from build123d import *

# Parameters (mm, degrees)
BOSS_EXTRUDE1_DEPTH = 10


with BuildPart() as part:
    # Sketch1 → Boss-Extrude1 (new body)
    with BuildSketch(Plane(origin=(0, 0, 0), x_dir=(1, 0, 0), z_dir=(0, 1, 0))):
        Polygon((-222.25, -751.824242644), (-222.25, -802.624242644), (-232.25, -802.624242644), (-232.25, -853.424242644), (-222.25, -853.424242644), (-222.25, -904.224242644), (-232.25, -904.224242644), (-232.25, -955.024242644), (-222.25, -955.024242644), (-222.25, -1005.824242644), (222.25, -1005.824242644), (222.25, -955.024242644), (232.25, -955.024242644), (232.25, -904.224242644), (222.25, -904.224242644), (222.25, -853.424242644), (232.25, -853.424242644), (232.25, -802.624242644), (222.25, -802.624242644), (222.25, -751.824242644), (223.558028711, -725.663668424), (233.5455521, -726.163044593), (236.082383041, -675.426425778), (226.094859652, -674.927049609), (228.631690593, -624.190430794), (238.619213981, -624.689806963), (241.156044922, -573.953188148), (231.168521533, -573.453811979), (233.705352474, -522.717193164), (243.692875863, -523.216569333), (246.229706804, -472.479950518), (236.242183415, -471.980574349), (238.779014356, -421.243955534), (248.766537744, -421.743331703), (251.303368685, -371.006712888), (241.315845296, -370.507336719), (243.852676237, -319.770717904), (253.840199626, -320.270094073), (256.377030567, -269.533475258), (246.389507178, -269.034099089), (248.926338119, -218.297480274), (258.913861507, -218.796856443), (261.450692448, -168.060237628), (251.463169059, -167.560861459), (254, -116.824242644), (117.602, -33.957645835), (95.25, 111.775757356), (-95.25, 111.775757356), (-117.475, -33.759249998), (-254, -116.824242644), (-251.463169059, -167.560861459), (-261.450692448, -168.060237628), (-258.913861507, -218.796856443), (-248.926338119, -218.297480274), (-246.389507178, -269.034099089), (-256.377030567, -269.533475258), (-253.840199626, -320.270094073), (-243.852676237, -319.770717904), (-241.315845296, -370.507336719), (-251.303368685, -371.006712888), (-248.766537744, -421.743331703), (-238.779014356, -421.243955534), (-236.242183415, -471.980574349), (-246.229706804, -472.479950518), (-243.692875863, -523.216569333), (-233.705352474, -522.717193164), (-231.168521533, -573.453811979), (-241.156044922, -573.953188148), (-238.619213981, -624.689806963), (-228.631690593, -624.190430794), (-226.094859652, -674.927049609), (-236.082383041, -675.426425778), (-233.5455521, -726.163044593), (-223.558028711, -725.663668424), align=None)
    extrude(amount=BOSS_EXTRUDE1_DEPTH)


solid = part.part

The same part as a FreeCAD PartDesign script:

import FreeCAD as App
import Part
import Sketcher

V = App.Vector
Q = App.Units.Quantity

doc = App.newDocument("Part")
params = doc.addObject("Spreadsheet::Sheet", "Params")
for row, (alias, value) in enumerate([
    ("sketch1_height", "2 in"),
    ("sketch1_length", "2 in"),
    ("sketch1_width", "17.5 in"),
    ("sketch1_width2", "7.5 in"),
    ("pad1_length", "10 mm"),
], start=1):
    params.set(f"A{row}", alias)
    params.set(f"B{row}", "=" + value)
    params.setAlias(f"B{row}", alias)

body = doc.addObject("PartDesign::Body", "Body")

sketch1 = doc.addObject("Sketcher::SketchObject", "Sketch")
body.addObject(sketch1)
sketch1.AttachmentSupport = (doc.XZ_Plane, [""])
sketch1.MapMode = "FlatFace"
sketch1.addGeometry([
    Part.LineSegment(V(-222.25, 751.824243, 0), V(-222.25, 802.624243, 0)),
    Part.LineSegment(V(-222.25, 802.624243, 0), V(-232.25, 802.624243, 0)),
    Part.LineSegment(V(-232.25, 802.624243, 0), V(-232.25, 853.424243, 0)),
    Part.LineSegment(V(-232.25, 853.424243, 0), V(-222.25, 853.424243, 0)),
    Part.LineSegment(V(-222.25, 853.424243, 0), V(-222.25, 904.224243, 0)),
    Part.LineSegment(V(-222.25, 904.224243, 0), V(-232.25, 904.224243, 0)),
    Part.LineSegment(V(-232.25, 904.224243, 0), V(-232.25, 955.024243, 0)),
    Part.LineSegment(V(-232.25, 955.024243, 0), V(-222.25, 955.024243, 0)),
    Part.LineSegment(V(-222.25, 955.024243, 0), V(-222.25, 1005.824243, 0)),
    Part.LineSegment(V(-222.25, 1005.824243, 0), V(222.25, 1005.824243, 0)),
    Part.LineSegment(V(222.25, 1005.824243, 0), V(222.25, 955.024243, 0)),
    Part.LineSegment(V(222.25, 955.024243, 0), V(232.25, 955.024243, 0)),
    Part.LineSegment(V(232.25, 955.024243, 0), V(232.25, 904.224243, 0)),
    Part.LineSegment(V(232.25, 904.224243, 0), V(222.25, 904.224243, 0)),
    Part.LineSegment(V(222.25, 904.224243, 0), V(222.25, 853.424243, 0)),
    Part.LineSegment(V(222.25, 853.424243, 0), V(232.25, 853.424243, 0)),
    Part.LineSegment(V(232.25, 853.424243, 0), V(232.25, 802.624243, 0)),
    Part.LineSegment(V(232.25, 802.624243, 0), V(222.25, 802.624243, 0)),
    Part.LineSegment(V(222.25, 802.624243, 0), V(222.25, 751.824243, 0)),
    Part.LineSegment(V(222.25, 751.824243, 0), V(223.558029, 725.663668, 0)),
    Part.LineSegment(V(223.558029, 725.663668, 0), V(233.545552, 726.163045, 0)),
    Part.LineSegment(V(233.545552, 726.163045, 0), V(236.082383, 675.426426, 0)),
    Part.LineSegment(V(236.082383, 675.426426, 0), V(226.09486, 674.92705, 0)),
    Part.LineSegment(V(226.09486, 674.92705, 0), V(228.631691, 624.190431, 0)),
    Part.LineSegment(V(228.631691, 624.190431, 0), V(238.619214, 624.689807, 0)),
    Part.LineSegment(V(238.619214, 624.689807, 0), V(241.156045, 573.953188, 0)),
    Part.LineSegment(V(241.156045, 573.953188, 0), V(231.168522, 573.453812, 0)),
    Part.LineSegment(V(231.168522, 573.453812, 0), V(233.705352, 522.717193, 0)),
    Part.LineSegment(V(233.705352, 522.717193, 0), V(243.692876, 523.216569, 0)),
    Part.LineSegment(V(243.692876, 523.216569, 0), V(246.229707, 472.479951, 0)),
    Part.LineSegment(V(246.229707, 472.479951, 0), V(236.242183, 471.980574, 0)),
    Part.LineSegment(V(236.242183, 471.980574, 0), V(238.779014, 421.243956, 0)),
    Part.LineSegment(V(238.779014, 421.243956, 0), V(248.766538, 421.743332, 0)),
    Part.LineSegment(V(248.766538, 421.743332, 0), V(251.303369, 371.006713, 0)),
    Part.LineSegment(V(251.303369, 371.006713, 0), V(241.315845, 370.507337, 0)),
    Part.LineSegment(V(241.315845, 370.507337, 0), V(243.852676, 319.770718, 0)),
    Part.LineSegment(V(243.852676, 319.770718, 0), V(253.8402, 320.270094, 0)),
    Part.LineSegment(V(253.8402, 320.270094, 0), V(256.377031, 269.533475, 0)),
    Part.LineSegment(V(256.377031, 269.533475, 0), V(246.389507, 269.034099, 0)),
    Part.LineSegment(V(246.389507, 269.034099, 0), V(248.926338, 218.29748, 0)),
    Part.LineSegment(V(248.926338, 218.29748, 0), V(258.913862, 218.796856, 0)),
    Part.LineSegment(V(258.913862, 218.796856, 0), V(261.450692, 168.060238, 0)),
    Part.LineSegment(V(261.450692, 168.060238, 0), V(251.463169, 167.560861, 0)),
    Part.LineSegment(V(251.463169, 167.560861, 0), V(254, 116.824243, 0)),
    Part.LineSegment(V(254, 116.824243, 0), V(117.602, 33.957646, 0)),
    Part.LineSegment(V(117.602, 33.957646, 0), V(95.25, -111.775757, 0)),
    Part.LineSegment(V(95.25, -111.775757, 0), V(-95.25, -111.775757, 0)),
    Part.LineSegment(V(-95.25, -111.775757, 0), V(-117.475, 33.75925, 0)),
    Part.LineSegment(V(-117.475, 33.75925, 0), V(-254, 116.824243, 0)),
    Part.LineSegment(V(-254, 116.824243, 0), V(-251.463169, 167.560861, 0)),
    Part.LineSegment(V(-251.463169, 167.560861, 0), V(-261.450692, 168.060238, 0)),
    Part.LineSegment(V(-261.450692, 168.060238, 0), V(-258.913862, 218.796856, 0)),
    Part.LineSegment(V(-258.913862, 218.796856, 0), V(-248.926338, 218.29748, 0)),
    Part.LineSegment(V(-248.926338, 218.29748, 0), V(-246.389507, 269.034099, 0)),
    Part.LineSegment(V(-246.389507, 269.034099, 0), V(-256.377031, 269.533475, 0)),
    Part.LineSegment(V(-256.377031, 269.533475, 0), V(-253.8402, 320.270094, 0)),
    Part.LineSegment(V(-253.8402, 320.270094, 0), V(-243.852676, 319.770718, 0)),
    Part.LineSegment(V(-243.852676, 319.770718, 0), V(-241.315845, 370.507337, 0)),
    Part.LineSegment(V(-241.315845, 370.507337, 0), V(-251.303369, 371.006713, 0)),
    Part.LineSegment(V(-251.303369, 371.006713, 0), V(-248.766538, 421.743332, 0)),
    Part.LineSegment(V(-248.766538, 421.743332, 0), V(-238.779014, 421.243956, 0)),
    Part.LineSegment(V(-238.779014, 421.243956, 0), V(-236.242183, 471.980574, 0)),
    Part.LineSegment(V(-236.242183, 471.980574, 0), V(-246.229707, 472.479951, 0)),
    Part.LineSegment(V(-246.229707, 472.479951, 0), V(-243.692876, 523.216569, 0)),
    Part.LineSegment(V(-243.692876, 523.216569, 0), V(-233.705352, 522.717193, 0)),
    Part.LineSegment(V(-233.705352, 522.717193, 0), V(-231.168522, 573.453812, 0)),
    Part.LineSegment(V(-231.168522, 573.453812, 0), V(-241.156045, 573.953188, 0)),
    Part.LineSegment(V(-241.156045, 573.953188, 0), V(-238.619214, 624.689807, 0)),
    Part.LineSegment(V(-238.619214, 624.689807, 0), V(-228.631691, 624.190431, 0)),
    Part.LineSegment(V(-228.631691, 624.190431, 0), V(-226.09486, 674.92705, 0)),
    Part.LineSegment(V(-226.09486, 674.92705, 0), V(-236.082383, 675.426426, 0)),
    Part.LineSegment(V(-236.082383, 675.426426, 0), V(-233.545552, 726.163045, 0)),
    Part.LineSegment(V(-233.545552, 726.163045, 0), V(-223.558029, 725.663668, 0)),
    Part.LineSegment(V(-223.558029, 725.663668, 0), V(-222.25, 751.824243, 0)),
], False)
sketch1.addConstraint([
    Sketcher.Constraint("Coincident", 0, 2, 1, 1),
    Sketcher.Constraint("Coincident", 1, 2, 2, 1),
    Sketcher.Constraint("Coincident", 2, 2, 3, 1),
    Sketcher.Constraint("Coincident", 3, 2, 4, 1),
    Sketcher.Constraint("Coincident", 4, 2, 5, 1),
    Sketcher.Constraint("Coincident", 5, 2, 6, 1),
    Sketcher.Constraint("Coincident", 6, 2, 7, 1),
    Sketcher.Constraint("Coincident", 7, 2, 8, 1),
    Sketcher.Constraint("Coincident", 8, 2, 9, 1),
    Sketcher.Constraint("Coincident", 9, 2, 10, 1),
    Sketcher.Constraint("Coincident", 10, 2, 11, 1),
    Sketcher.Constraint("Coincident", 11, 2, 12, 1),
    Sketcher.Constraint("Coincident", 12, 2, 13, 1),
    Sketcher.Constraint("Coincident", 13, 2, 14, 1),
    Sketcher.Constraint("Coincident", 14, 2, 15, 1),
    Sketcher.Constraint("Coincident", 15, 2, 16, 1),
    Sketcher.Constraint("Coincident", 16, 2, 17, 1),
    Sketcher.Constraint("Coincident", 17, 2, 18, 1),
    Sketcher.Constraint("Coincident", 18, 2, 19, 1),
    Sketcher.Constraint("Coincident", 19, 2, 20, 1),
    Sketcher.Constraint("Coincident", 20, 2, 21, 1),
    Sketcher.Constraint("Coincident", 21, 2, 22, 1),
    Sketcher.Constraint("Coincident", 22, 2, 23, 1),
    Sketcher.Constraint("Coincident", 23, 2, 24, 1),
    Sketcher.Constraint("Coincident", 24, 2, 25, 1),
    Sketcher.Constraint("Coincident", 25, 2, 26, 1),
    Sketcher.Constraint("Coincident", 26, 2, 27, 1),
    Sketcher.Constraint("Coincident", 27, 2, 28, 1),
    Sketcher.Constraint("Coincident", 28, 2, 29, 1),
    Sketcher.Constraint("Coincident", 29, 2, 30, 1),
    Sketcher.Constraint("Coincident", 30, 2, 31, 1),
    Sketcher.Constraint("Coincident", 31, 2, 32, 1),
    Sketcher.Constraint("Coincident", 32, 2, 33, 1),
    Sketcher.Constraint("Coincident", 33, 2, 34, 1),
    Sketcher.Constraint("Coincident", 34, 2, 35, 1),
    Sketcher.Constraint("Coincident", 35, 2, 36, 1),
    Sketcher.Constraint("Coincident", 36, 2, 37, 1),
    Sketcher.Constraint("Coincident", 37, 2, 38, 1),
    Sketcher.Constraint("Coincident", 38, 2, 39, 1),
    Sketcher.Constraint("Coincident", 39, 2, 40, 1),
    Sketcher.Constraint("Coincident", 40, 2, 41, 1),
    Sketcher.Constraint("Coincident", 41, 2, 42, 1),
    Sketcher.Constraint("Coincident", 42, 2, 43, 1),
    Sketcher.Constraint("Coincident", 43, 2, 44, 1),
    Sketcher.Constraint("Coincident", 44, 2, 45, 1),
    Sketcher.Constraint("Coincident", 45, 2, 46, 1),
    Sketcher.Constraint("Coincident", 46, 2, 47, 1),
    Sketcher.Constraint("Coincident", 47, 2, 48, 1),
    Sketcher.Constraint("Coincident", 48, 2, 49, 1),
    Sketcher.Constraint("Coincident", 49, 2, 50, 1),
    Sketcher.Constraint("Coincident", 50, 2, 51, 1),
    Sketcher.Constraint("Coincident", 51, 2, 52, 1),
    Sketcher.Constraint("Coincident", 52, 2, 53, 1),
    Sketcher.Constraint("Coincident", 53, 2, 54, 1),
    Sketcher.Constraint("Coincident", 54, 2, 55, 1),
    Sketcher.Constraint("Coincident", 55, 2, 56, 1),
    Sketcher.Constraint("Coincident", 56, 2, 57, 1),
    Sketcher.Constraint("Coincident", 57, 2, 58, 1),
    Sketcher.Constraint("Coincident", 58, 2, 59, 1),
    Sketcher.Constraint("Coincident", 59, 2, 60, 1),
    Sketcher.Constraint("Coincident", 60, 2, 61, 1),
    Sketcher.Constraint("Coincident", 61, 2, 62, 1),
    Sketcher.Constraint("Coincident", 62, 2, 63, 1),
    Sketcher.Constraint("Coincident", 63, 2, 64, 1),
    Sketcher.Constraint("Coincident", 64, 2, 65, 1),
    Sketcher.Constraint("Coincident", 65, 2, 66, 1),
    Sketcher.Constraint("Coincident", 66, 2, 67, 1),
    Sketcher.Constraint("Coincident", 67, 2, 68, 1),
    Sketcher.Constraint("Coincident", 68, 2, 69, 1),
    Sketcher.Constraint("Coincident", 69, 2, 70, 1),
    Sketcher.Constraint("Coincident", 70, 2, 71, 1),
    Sketcher.Constraint("Coincident", 71, 2, 72, 1),
    Sketcher.Constraint("Coincident", 72, 2, 73, 1),
    Sketcher.Constraint("Coincident", 73, 2, 0, 1),
    Sketcher.Constraint("Vertical", 0),
    Sketcher.Constraint("Horizontal", 1),
    Sketcher.Constraint("Vertical", 2),
    Sketcher.Constraint("Horizontal", 3),
    Sketcher.Constraint("Vertical", 4),
    Sketcher.Constraint("Horizontal", 5),
    Sketcher.Constraint("Vertical", 6),
    Sketcher.Constraint("Horizontal", 7),
    Sketcher.Constraint("Vertical", 8),
    Sketcher.Constraint("Horizontal", 9),
    Sketcher.Constraint("Vertical", 10),
    Sketcher.Constraint("Horizontal", 11),
    Sketcher.Constraint("Vertical", 12),
    Sketcher.Constraint("Horizontal", 13),
    Sketcher.Constraint("Vertical", 14),
    Sketcher.Constraint("Horizontal", 15),
    Sketcher.Constraint("Vertical", 16),
    Sketcher.Constraint("Horizontal", 17),
    Sketcher.Constraint("Vertical", 18),
    Sketcher.Constraint("Horizontal", 46),
    Sketcher.Constraint("Symmetric", 7, 2, 10, 2, -2),
    Sketcher.Constraint("Symmetric", 5, 2, 12, 2, -2),
    Sketcher.Constraint("Symmetric", 3, 2, 14, 2, -2),
    Sketcher.Constraint("Symmetric", 1, 2, 16, 2, -2),
    Sketcher.Constraint("Symmetric", 43, 2, 48, 2, -2),
    Sketcher.Constraint("Symmetric", 42, 2, 49, 2, -2),
    Sketcher.Constraint("Symmetric", 41, 2, 50, 2, -2),
    Sketcher.Constraint("Symmetric", 40, 2, 51, 2, -2),
    Sketcher.Constraint("Symmetric", 39, 2, 52, 2, -2),
    Sketcher.Constraint("Symmetric", 38, 2, 53, 2, -2),
    Sketcher.Constraint("Symmetric", 37, 2, 54, 2, -2),
    Sketcher.Constraint("Symmetric", 36, 2, 55, 2, -2),
    Sketcher.Constraint("Symmetric", 35, 2, 56, 2, -2),
    Sketcher.Constraint("Symmetric", 34, 2, 57, 2, -2),
    Sketcher.Constraint("Symmetric", 33, 2, 58, 2, -2),
    Sketcher.Constraint("Symmetric", 32, 2, 59, 2, -2),
    Sketcher.Constraint("Symmetric", 31, 2, 60, 2, -2),
    Sketcher.Constraint("Symmetric", 30, 2, 61, 2, -2),
    Sketcher.Constraint("Symmetric", 29, 2, 62, 2, -2),
    Sketcher.Constraint("Symmetric", 28, 2, 63, 2, -2),
    Sketcher.Constraint("Symmetric", 27, 2, 64, 2, -2),
    Sketcher.Constraint("Symmetric", 26, 2, 65, 2, -2),
    Sketcher.Constraint("Symmetric", 25, 2, 66, 2, -2),
    Sketcher.Constraint("Symmetric", 24, 2, 67, 2, -2),
    Sketcher.Constraint("Symmetric", 23, 2, 68, 2, -2),
    Sketcher.Constraint("Symmetric", 22, 2, 69, 2, -2),
    Sketcher.Constraint("Symmetric", 21, 2, 70, 2, -2),
    Sketcher.Constraint("Symmetric", 20, 2, 71, 2, -2),
    Sketcher.Constraint("Symmetric", 19, 2, 72, 2, -2),
    Sketcher.Constraint("Symmetric", 18, 2, 73, 2, -2),
    Sketcher.Constraint("Perpendicular", 19, 20),
    Sketcher.Constraint("Perpendicular", 20, 21),
    Sketcher.Constraint("Perpendicular", 21, 22),
    Sketcher.Constraint("Perpendicular", 22, 23),
    Sketcher.Constraint("Perpendicular", 23, 24),
    Sketcher.Constraint("Perpendicular", 24, 25),
    Sketcher.Constraint("Perpendicular", 25, 26),
    Sketcher.Constraint("Perpendicular", 26, 27),
    Sketcher.Constraint("Perpendicular", 27, 28),
    Sketcher.Constraint("Perpendicular", 28, 29),
    Sketcher.Constraint("Perpendicular", 29, 30),
    Sketcher.Constraint("Perpendicular", 30, 31),
    Sketcher.Constraint("Perpendicular", 31, 32),
    Sketcher.Constraint("Perpendicular", 32, 33),
    Sketcher.Constraint("Perpendicular", 33, 34),
    Sketcher.Constraint("Perpendicular", 34, 35),
    Sketcher.Constraint("Perpendicular", 35, 36),
    Sketcher.Constraint("Perpendicular", 36, 37),
    Sketcher.Constraint("Perpendicular", 37, 38),
    Sketcher.Constraint("Perpendicular", 38, 39),
    Sketcher.Constraint("Perpendicular", 39, 40),
    Sketcher.Constraint("Perpendicular", 40, 41),
    Sketcher.Constraint("Perpendicular", 41, 42),
    Sketcher.Constraint("Perpendicular", 42, 43),
    Sketcher.Constraint("Vertical", 0, 2, 3, 2),
    Sketcher.Constraint("Vertical", 2, 2, 5, 2),
    Sketcher.Constraint("Vertical", 4, 2, 7, 2),
    Sketcher.Constraint("Equal", 0, 2),
    Sketcher.Constraint("Equal", 2, 4),
    Sketcher.Constraint("Equal", 4, 6),
    Sketcher.Constraint("Equal", 6, 8),
    Sketcher.Constraint("Equal", 20, 22),
    Sketcher.Constraint("Equal", 21, 23),
    Sketcher.Constraint("Equal", 22, 24),
    Sketcher.Constraint("Equal", 23, 25),
    Sketcher.Constraint("Equal", 24, 26),
    Sketcher.Constraint("Equal", 25, 27),
    Sketcher.Constraint("Equal", 26, 28),
    Sketcher.Constraint("Equal", 27, 29),
    Sketcher.Constraint("Equal", 28, 30),
    Sketcher.Constraint("Equal", 29, 31),
    Sketcher.Constraint("Equal", 30, 32),
    Sketcher.Constraint("Equal", 31, 33),
    Sketcher.Constraint("Equal", 32, 34),
    Sketcher.Constraint("Equal", 33, 35),
    Sketcher.Constraint("Equal", 34, 36),
    Sketcher.Constraint("Equal", 35, 37),
    Sketcher.Constraint("Equal", 36, 38),
    Sketcher.Constraint("Equal", 37, 39),
    Sketcher.Constraint("Equal", 38, 40),
    Sketcher.Constraint("Equal", 39, 41),
    Sketcher.Constraint("Equal", 40, 42),
    Sketcher.Constraint("Equal", 41, 43),
    Sketcher.Constraint("DistanceY", 0, 1, 0, 2, Q("2 in")),
    Sketcher.Constraint("Distance", 21, Q("2 in")),
    Sketcher.Constraint("DistanceX", 9, 1, 9, 2, Q("17.5 in")),
    Sketcher.Constraint("DistanceX", 46, 2, 46, 1, Q("7.5 in")),
    Sketcher.Constraint("DistanceX", -1, 1, 43, 2, Q("10 in")),
    Sketcher.Constraint("DistanceX", -1, 1, 44, 2, Q("4.63 in")),
    Sketcher.Constraint("DistanceX", -1, 1, 45, 2, Q("3.75 in")),
    Sketcher.Constraint("DistanceX", 47, 2, -1, 1, Q("4.625 in")),
    Sketcher.Constraint("DistanceX", 1, 2, 1, 1, 10.0),
    Sketcher.Constraint("Distance", 20, 10.0),
    Sketcher.Constraint("DistanceX", -1, 1, 36, 2, 253.8402),
    Sketcher.Constraint("DistanceY", -1, 1, 38, 2, 269.034099),
    Sketcher.Constraint("Distance", 45, 147.437569),
    Sketcher.Constraint("Distance", 48, 159.80885),
    Sketcher.Constraint("Distance", 44, 159.597266),
])
sketch1.setExpression("Constraints[177]", "Params.sketch1_height")
sketch1.setExpression("Constraints[178]", "Params.sketch1_length")
sketch1.setExpression("Constraints[179]", "Params.sketch1_width")
sketch1.setExpression("Constraints[180]", "Params.sketch1_width2")
pad1 = doc.addObject("PartDesign::Pad", "Pad")
body.addObject(pad1)
pad1.Profile = sketch1
pad1.setExpression("Length", "Params.pad1_length")
pad1.Reversed = True

doc.recompute()
